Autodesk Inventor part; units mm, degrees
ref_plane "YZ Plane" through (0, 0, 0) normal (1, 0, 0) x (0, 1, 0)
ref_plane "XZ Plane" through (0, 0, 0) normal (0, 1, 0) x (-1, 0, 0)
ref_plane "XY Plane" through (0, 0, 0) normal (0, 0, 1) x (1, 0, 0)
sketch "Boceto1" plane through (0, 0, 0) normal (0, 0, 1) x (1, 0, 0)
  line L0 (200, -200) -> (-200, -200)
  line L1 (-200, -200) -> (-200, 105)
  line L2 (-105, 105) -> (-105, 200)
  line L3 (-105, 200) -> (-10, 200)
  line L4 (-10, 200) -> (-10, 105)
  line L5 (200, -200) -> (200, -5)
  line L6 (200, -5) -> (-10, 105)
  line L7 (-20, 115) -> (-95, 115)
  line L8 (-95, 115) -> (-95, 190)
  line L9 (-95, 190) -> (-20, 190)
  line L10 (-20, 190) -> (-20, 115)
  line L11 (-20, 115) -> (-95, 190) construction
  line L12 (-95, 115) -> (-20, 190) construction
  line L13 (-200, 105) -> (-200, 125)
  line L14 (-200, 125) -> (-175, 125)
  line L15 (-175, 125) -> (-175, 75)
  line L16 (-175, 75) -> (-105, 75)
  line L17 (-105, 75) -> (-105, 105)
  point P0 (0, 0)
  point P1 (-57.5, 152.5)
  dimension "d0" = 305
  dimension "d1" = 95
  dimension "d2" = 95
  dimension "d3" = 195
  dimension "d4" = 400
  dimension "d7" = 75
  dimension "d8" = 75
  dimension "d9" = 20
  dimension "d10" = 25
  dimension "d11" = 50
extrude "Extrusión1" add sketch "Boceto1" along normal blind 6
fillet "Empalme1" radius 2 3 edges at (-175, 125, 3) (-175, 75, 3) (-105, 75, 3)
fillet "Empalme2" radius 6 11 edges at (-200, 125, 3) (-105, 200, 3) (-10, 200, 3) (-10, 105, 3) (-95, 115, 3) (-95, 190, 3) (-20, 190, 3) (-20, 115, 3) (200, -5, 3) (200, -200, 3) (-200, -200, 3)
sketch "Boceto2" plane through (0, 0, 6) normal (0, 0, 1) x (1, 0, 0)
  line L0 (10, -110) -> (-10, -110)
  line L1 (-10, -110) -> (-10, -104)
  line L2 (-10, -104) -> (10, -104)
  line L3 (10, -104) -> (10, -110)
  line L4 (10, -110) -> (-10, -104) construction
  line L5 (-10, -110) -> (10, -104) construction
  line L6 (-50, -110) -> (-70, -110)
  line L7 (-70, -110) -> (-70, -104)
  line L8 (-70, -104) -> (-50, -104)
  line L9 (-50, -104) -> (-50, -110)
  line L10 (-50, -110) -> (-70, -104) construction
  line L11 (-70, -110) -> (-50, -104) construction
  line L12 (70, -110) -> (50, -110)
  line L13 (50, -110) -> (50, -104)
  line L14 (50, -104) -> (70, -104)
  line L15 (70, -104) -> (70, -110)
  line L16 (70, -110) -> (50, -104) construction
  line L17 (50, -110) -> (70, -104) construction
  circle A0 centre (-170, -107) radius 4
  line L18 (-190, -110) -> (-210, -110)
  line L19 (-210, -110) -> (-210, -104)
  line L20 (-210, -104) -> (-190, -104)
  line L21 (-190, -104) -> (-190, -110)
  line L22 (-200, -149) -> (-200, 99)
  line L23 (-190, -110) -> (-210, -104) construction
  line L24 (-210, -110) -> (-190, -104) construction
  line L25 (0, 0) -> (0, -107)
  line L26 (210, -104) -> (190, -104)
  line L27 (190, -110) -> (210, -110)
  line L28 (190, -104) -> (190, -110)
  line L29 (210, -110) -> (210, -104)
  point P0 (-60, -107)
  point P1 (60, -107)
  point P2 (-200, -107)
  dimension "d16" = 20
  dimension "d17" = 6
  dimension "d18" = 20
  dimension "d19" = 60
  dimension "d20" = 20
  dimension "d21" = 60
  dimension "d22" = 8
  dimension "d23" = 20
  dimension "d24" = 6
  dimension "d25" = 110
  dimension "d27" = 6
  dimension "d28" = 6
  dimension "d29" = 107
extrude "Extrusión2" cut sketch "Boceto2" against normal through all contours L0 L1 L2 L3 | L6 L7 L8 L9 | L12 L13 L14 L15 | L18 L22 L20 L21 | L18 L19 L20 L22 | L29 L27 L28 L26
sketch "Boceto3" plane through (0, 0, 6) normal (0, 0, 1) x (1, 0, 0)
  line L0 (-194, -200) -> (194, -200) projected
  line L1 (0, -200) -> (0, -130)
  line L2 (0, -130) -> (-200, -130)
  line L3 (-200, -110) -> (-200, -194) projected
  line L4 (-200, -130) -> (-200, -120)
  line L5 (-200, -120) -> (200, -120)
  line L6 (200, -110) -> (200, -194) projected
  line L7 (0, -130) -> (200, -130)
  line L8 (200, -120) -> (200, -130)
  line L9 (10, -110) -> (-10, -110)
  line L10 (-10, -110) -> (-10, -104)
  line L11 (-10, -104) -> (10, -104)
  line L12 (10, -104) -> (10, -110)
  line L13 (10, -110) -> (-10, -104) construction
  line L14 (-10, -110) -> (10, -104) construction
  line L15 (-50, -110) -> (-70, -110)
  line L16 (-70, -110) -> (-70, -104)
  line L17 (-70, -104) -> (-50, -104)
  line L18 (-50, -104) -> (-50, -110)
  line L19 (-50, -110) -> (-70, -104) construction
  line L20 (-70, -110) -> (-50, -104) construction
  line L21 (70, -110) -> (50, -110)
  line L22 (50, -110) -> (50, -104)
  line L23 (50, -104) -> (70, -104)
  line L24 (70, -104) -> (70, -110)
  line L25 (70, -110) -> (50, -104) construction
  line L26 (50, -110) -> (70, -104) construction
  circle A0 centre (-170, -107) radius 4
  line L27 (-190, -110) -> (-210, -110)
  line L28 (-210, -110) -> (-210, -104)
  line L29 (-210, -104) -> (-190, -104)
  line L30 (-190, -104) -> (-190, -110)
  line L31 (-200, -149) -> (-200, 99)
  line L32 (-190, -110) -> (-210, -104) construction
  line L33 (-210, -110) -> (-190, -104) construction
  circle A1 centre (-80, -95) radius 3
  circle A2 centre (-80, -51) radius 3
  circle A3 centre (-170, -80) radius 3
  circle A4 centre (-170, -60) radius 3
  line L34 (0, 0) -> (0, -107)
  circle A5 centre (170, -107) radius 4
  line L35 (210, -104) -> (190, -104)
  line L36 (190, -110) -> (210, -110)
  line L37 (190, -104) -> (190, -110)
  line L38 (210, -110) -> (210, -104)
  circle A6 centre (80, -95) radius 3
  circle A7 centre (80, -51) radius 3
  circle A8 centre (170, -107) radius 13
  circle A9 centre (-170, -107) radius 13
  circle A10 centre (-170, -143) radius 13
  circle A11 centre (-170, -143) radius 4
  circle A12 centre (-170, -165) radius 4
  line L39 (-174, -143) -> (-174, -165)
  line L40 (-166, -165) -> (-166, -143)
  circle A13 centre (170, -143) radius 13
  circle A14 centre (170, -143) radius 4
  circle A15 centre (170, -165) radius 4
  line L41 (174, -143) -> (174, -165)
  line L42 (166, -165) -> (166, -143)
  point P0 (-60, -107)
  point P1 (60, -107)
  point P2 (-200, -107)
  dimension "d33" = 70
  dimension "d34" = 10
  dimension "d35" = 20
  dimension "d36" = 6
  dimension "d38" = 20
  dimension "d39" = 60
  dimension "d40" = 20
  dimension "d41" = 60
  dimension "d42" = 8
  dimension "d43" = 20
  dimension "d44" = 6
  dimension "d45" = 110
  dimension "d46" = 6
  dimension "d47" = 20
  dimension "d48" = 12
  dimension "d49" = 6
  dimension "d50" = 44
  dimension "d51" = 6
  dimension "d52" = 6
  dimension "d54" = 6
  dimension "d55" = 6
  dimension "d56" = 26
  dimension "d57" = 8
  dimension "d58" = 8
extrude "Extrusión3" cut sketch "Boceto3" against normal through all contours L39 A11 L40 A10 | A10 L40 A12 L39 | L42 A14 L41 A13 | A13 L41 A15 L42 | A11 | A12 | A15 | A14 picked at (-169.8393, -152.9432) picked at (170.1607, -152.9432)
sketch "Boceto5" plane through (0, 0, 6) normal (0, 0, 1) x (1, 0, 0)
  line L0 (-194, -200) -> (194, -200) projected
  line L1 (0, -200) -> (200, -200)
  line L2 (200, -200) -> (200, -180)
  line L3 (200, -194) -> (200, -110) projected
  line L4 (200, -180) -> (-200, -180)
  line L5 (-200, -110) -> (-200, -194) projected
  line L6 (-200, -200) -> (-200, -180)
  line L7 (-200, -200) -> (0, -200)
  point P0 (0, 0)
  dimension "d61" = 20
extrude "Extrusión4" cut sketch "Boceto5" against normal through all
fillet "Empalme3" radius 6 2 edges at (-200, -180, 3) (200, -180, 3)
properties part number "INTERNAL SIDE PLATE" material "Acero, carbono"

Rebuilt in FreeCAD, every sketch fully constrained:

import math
import FreeCAD as App
import Part
import Sketcher
from FreeCAD import Vector


def edges_at(feature, points):
    """Names of the edges that pass closest to the given points."""
    edges = feature.Shape.Edges
    near = lambda p: min(range(len(edges)), key=lambda i: edges[i].distToShape(Part.Vertex(*p))[0])
    return sorted({f"Edge{near(p) + 1}" for p in points})


def add_polygon(sketch, points):
    """Adds a closed chain of lines whose ends are joined by coincident constraints."""
    first, n = sketch.GeometryCount, len(points)
    for a, b in zip(points, points[1:] + points[:1]):
        sketch.addGeometry(Part.LineSegment(App.Vector(*a, 0), App.Vector(*b, 0)), False)
    for i in range(n):
        sketch.addConstraint(Sketcher.Constraint("Coincident", first + i, 2, first + (i + 1) % n, 1))

doc = App.newDocument("Part")
body = doc.addObject("PartDesign::Body", "Body")

# Sketch on XY plane
sketch1 = doc.addObject("Sketcher::SketchObject", "Sketch")
body.addObject(sketch1)
sketch1.AttachmentSupport = (doc.XY_Plane, [""])
sketch1.MapMode = "FlatFace"
add_polygon(sketch1, [(-200, -200), (200, -200), (200, -5), (-10, 105), (-10, 200), (-105, 200), (-105, 75), (-175, 75), (-175, 125), (-200, 125)])  # lines 0-9
add_polygon(sketch1, [(-20, 190), (-20, 115), (-95, 115), (-95, 190)])  # lines 10-13
sketch1.addConstraint([
    Sketcher.Constraint("Horizontal", 0),
    Sketcher.Constraint("Vertical", 1),
    Sketcher.Constraint("Vertical", 3),
    Sketcher.Constraint("Horizontal", 4),
    Sketcher.Constraint("Vertical", 5),
    Sketcher.Constraint("Horizontal", 6),
    Sketcher.Constraint("Vertical", 7),
    Sketcher.Constraint("Horizontal", 8),
    Sketcher.Constraint("Vertical", 9),
    Sketcher.Constraint("Vertical", 10),
    Sketcher.Constraint("Horizontal", 11),
    Sketcher.Constraint("Vertical", 12),
    Sketcher.Constraint("Horizontal", 13),
    Sketcher.Constraint("Equal", 4, 3),
    Sketcher.Constraint("Equal", 13, 10),
    Sketcher.Constraint("DistanceX", 0, 1, 0, 2, 400.0),
    Sketcher.Constraint("DistanceX", 4, 2, 4, 1, 95.0),
    Sketcher.Constraint("DistanceX", 8, 2, 8, 1, 25.0),
    Sketcher.Constraint("DistanceX", 11, 2, 11, 1, 75.0),
    Sketcher.Constraint("DistanceY", 1, 1, 1, 2, 195.0),
    Sketcher.Constraint("DistanceY", 7, 1, 7, 2, 50.0),
    Sketcher.Constraint("DistanceY", -1, 1, 5, 2, 75.0),
    Sketcher.Constraint("DistanceX", 10, 2, -1, 1, 20.0),
    Sketcher.Constraint("DistanceY", 0, 2, 2, 2, 305.0),
    Sketcher.Constraint("DistanceX", 4, 2, 1, 2, 305.0),
    Sketcher.Constraint("DistanceY", 7, 2, 4, 2, 75.0),
    Sketcher.Constraint("DistanceX", -1, 1, 0, 2, 200.0),
    Sketcher.Constraint("DistanceY", -1, 1, 10, 2, 115.0),
])
pad1 = doc.addObject("PartDesign::Pad", "Pad")
body.addObject(pad1)
pad1.Profile = sketch1
pad1.Length = 6
doc.recompute()

fillet = doc.addObject("PartDesign::Fillet", "Fillet")
body.addObject(fillet)
fillet.Base = (pad1, edges_at(pad1, [(-175, 125, 3), (-175, 75, 3), (-105, 75, 3)]))
fillet.Radius = 2
doc.recompute()

fillet2 = doc.addObject("PartDesign::Fillet", "Fillet001")
body.addObject(fillet2)
fillet2.Base = (fillet, edges_at(fillet, [
    (-200, 125, 3),
    (-105, 200, 3),
    (-10, 200, 3),
    (-10, 105, 3),
    (-95, 115, 3),
    (-95, 190, 3),
    (-20, 190, 3),
    (-20, 115, 3),
    (200, -5, 3),
    (200, -200, 3),
    (-200, -200, 3),
]))
fillet2.Radius = 6

# Sketch on XY plane
sketch2 = doc.addObject("Sketcher::SketchObject", "Sketch001")
body.addObject(sketch2)
sketch2.AttachmentSupport = (doc.XY_Plane, [""])
sketch2.MapMode = "FlatFace"
sketch2.AttachmentOffset = App.Placement(Vector(0, 0, 6), App.Rotation())
add_polygon(sketch2, [(-10, -110), (10, -110), (10, -104), (-10, -104)])  # lines 0-3
add_polygon(sketch2, [(-70, -110), (-50, -110), (-50, -104), (-70, -104)])  # lines 4-7
add_polygon(sketch2, [(50, -110), (70, -110), (70, -104), (50, -104)])  # lines 8-11
add_polygon(sketch2, [(-190, -110), (-190, -104), (-210, -104), (-210, -110)])  # lines 12-15
add_polygon(sketch2, [(210, -110), (210, -104), (190, -104), (190, -110)])  # lines 16-19
sketch2.addConstraint([
    Sketcher.Constraint("Horizontal", 0),
    Sketcher.Constraint("Vertical", 1),
    Sketcher.Constraint("Horizontal", 2),
    Sketcher.Constraint("Vertical", 3),
    Sketcher.Constraint("Horizontal", 4),
    Sketcher.Constraint("Vertical", 5),
    Sketcher.Constraint("Horizontal", 6),
    Sketcher.Constraint("Vertical", 7),
    Sketcher.Constraint("Horizontal", 8),
    Sketcher.Constraint("Vertical", 9),
    Sketcher.Constraint("Horizontal", 10),
    Sketcher.Constraint("Vertical", 11),
    Sketcher.Constraint("Vertical", 12),
    Sketcher.Constraint("Horizontal", 13),
    Sketcher.Constraint("Vertical", 14),
    Sketcher.Constraint("Horizontal", 15),
    Sketcher.Constraint("Vertical", 16),
    Sketcher.Constraint("Horizontal", 17),
    Sketcher.Constraint("Vertical", 18),
    Sketcher.Constraint("Horizontal", 19),
    Sketcher.Constraint("Symmetric", 7, 2, 8, 2, -2),
    Sketcher.Constraint("Symmetric", 5, 2, 10, 2, -2),
    Sketcher.Constraint("Symmetric", 13, 2, 16, 2, -2),
    Sketcher.Constraint("Symmetric", 15, 2, 18, 2, -2),
    Sketcher.Constraint("Horizontal", 3, 2, 4, 2),
    Sketcher.Constraint("Horizontal", 2, 2, 5, 2),
    Sketcher.Constraint("Horizontal", 10, 2, 12, 2),
    Sketcher.Constraint("Horizontal", 11, 2, 14, 2),
    Sketcher.Constraint("Equal", 2, 4),
    Sketcher.Constraint("Equal", 10, 13),
    Sketcher.Constraint("DistanceX", 0, 1, 0, 2, 20.0),
    Sketcher.Constraint("DistanceY", 1, 1, 1, 2, 6.0),
    Sketcher.Constraint("DistanceY", 0, 2, -1, 1, 110.0),
    Sketcher.Constraint("DistanceX", 4, 2, 0, 2, 60.0),
    Sketcher.Constraint("DistanceX", 0, 2, 8, 2, 60.0),
    Sketcher.Constraint("DistanceX", 12, 2, -1, 1, 190.0),
])
pocket1 = doc.addObject("PartDesign::Pocket", "Pocket")
body.addObject(pocket1)
pocket1.Profile = sketch2
pocket1.Type = "ThroughAll"

# Sketch on XY plane
sketch3 = doc.addObject("Sketcher::SketchObject", "Sketch002")
body.addObject(sketch3)
sketch3.AttachmentSupport = (doc.XY_Plane, [""])
sketch3.MapMode = "FlatFace"
sketch3.AttachmentOffset = App.Placement(Vector(0, 0, 6), App.Rotation())
sketch3.addGeometry([
    Part.LineSegment(Vector(-174, -143, 0), Vector(-174, -165, 0)),  # 0
    Part.ArcOfCircle(Part.Circle(Vector(-170, -165, 0), Vector(0, 0, 1), 4), math.radians(180), math.radians(360)),  # 1
    Part.LineSegment(Vector(-166, -165, 0), Vector(-166, -143, 0)),  # 2
    Part.ArcOfCircle(Part.Circle(Vector(-170, -143, 0), Vector(0, 0, 1), 4), math.radians(0), math.radians(180)),  # 3
    Part.LineSegment(Vector(166, -143, 0), Vector(166, -165, 0)),  # 4
    Part.ArcOfCircle(Part.Circle(Vector(170, -165, 0), Vector(0, 0, 1), 4), math.radians(180), math.radians(360)),  # 5
    Part.LineSegment(Vector(174, -165, 0), Vector(174, -143, 0)),  # 6
    Part.ArcOfCircle(Part.Circle(Vector(170, -143, 0), Vector(0, 0, 1), 4), math.radians(0), math.radians(180)),  # 7
], False)
sketch3.addConstraint([
    Sketcher.Constraint("Tangent", 0, 2, 1, 1),
    Sketcher.Constraint("Tangent", 1, 2, 2, 1),
    Sketcher.Constraint("Tangent", 2, 2, 3, 1),
    Sketcher.Constraint("Tangent", 3, 2, 0, 1),
    Sketcher.Constraint("Tangent", 4, 2, 5, 1),
    Sketcher.Constraint("Tangent", 5, 2, 6, 1),
    Sketcher.Constraint("Tangent", 6, 2, 7, 1),
    Sketcher.Constraint("Tangent", 7, 2, 4, 1),
    Sketcher.Constraint("Vertical", 0),
    Sketcher.Constraint("Vertical", 2),
    Sketcher.Constraint("Vertical", 4),
    Sketcher.Constraint("Vertical", 6),
    Sketcher.Constraint("Equal", 3, 5),
    Sketcher.Constraint("Symmetric", 1, 3, 5, 3, -2),
    Sketcher.Constraint("Horizontal", 3, 3, 7, 3),
    Sketcher.Constraint("Radius", 1, 4.0),
    Sketcher.Constraint("DistanceY", 0, 2, 0, 1, 22.0),
    Sketcher.Constraint("DistanceX", 1, 3, -1, 1, 170.0),
    Sketcher.Constraint("DistanceY", 1, 3, -1, 1, 165.0),
])
pocket2 = doc.addObject("PartDesign::Pocket", "Pocket001")
body.addObject(pocket2)
pocket2.Profile = sketch3
pocket2.Type = "ThroughAll"

# Sketch on XY plane
sketch4 = doc.addObject("Sketcher::SketchObject", "Sketch003")
body.addObject(sketch4)
sketch4.AttachmentSupport = (doc.XY_Plane, [""])
sketch4.MapMode = "FlatFace"
sketch4.AttachmentOffset = App.Placement(Vector(0, 0, 6), App.Rotation())
add_polygon(sketch4, [(-200, -200), (200, -200), (200, -180), (-200, -180)])  # lines 0-3
sketch4.addConstraint([
    Sketcher.Constraint("Horizontal", 0),
    Sketcher.Constraint("Vertical", 1),
    Sketcher.Constraint("Horizontal", 2),
    Sketcher.Constraint("Vertical", 3),
    Sketcher.Constraint("DistanceY", 1, 1, 1, 2, 20.0),
    Sketcher.Constraint("DistanceX", 0, 1, 0, 2, 400.0),
    Sketcher.Constraint("DistanceX", -1, 1, 0, 2, 200.0),
    Sketcher.Constraint("DistanceY", 0, 2, -1, 1, 200.0),
])
pocket3 = doc.addObject("PartDesign::Pocket", "Pocket002")
body.addObject(pocket3)
pocket3.Profile = sketch4
pocket3.Type = "ThroughAll"
doc.recompute()

fillet3 = doc.addObject("PartDesign::Fillet", "Fillet002")
body.addObject(fillet3)
fillet3.Base = (pocket3, edges_at(pocket3, [(-200, -180, 3), (200, -180, 3)]))
fillet3.Radius = 6

doc.recompute()
